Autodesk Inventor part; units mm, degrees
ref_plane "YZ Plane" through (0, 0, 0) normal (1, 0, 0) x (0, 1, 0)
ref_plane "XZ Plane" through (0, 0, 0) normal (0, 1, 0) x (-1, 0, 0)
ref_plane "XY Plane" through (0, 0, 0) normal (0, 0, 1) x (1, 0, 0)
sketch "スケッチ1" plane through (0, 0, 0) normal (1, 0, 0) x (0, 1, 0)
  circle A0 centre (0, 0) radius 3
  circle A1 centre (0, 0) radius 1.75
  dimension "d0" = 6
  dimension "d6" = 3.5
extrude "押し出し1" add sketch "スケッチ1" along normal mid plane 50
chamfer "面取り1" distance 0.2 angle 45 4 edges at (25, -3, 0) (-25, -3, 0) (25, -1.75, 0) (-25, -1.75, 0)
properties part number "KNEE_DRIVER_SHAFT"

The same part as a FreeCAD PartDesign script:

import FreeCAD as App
import Part
import Sketcher
from FreeCAD import Vector
Q = App.Units.Quantity


def edges_at(feature, points):
    """Names of the edges that pass closest to the given points."""
    edges = feature.Shape.Edges
    near = lambda p: min(range(len(edges)), key=lambda i: edges[i].distToShape(Part.Vertex(*p))[0])
    return sorted({f"Edge{near(p) + 1}" for p in points})

doc = App.newDocument("Part")
body = doc.addObject("PartDesign::Body", "Body")

# Sketch on YZ plane
sketch1 = doc.addObject("Sketcher::SketchObject", "Sketch")
body.addObject(sketch1)
sketch1.AttachmentSupport = (doc.YZ_Plane, [""])
sketch1.MapMode = "FlatFace"
sketch1.addGeometry(Part.Circle(Vector(0, 0, 0), Vector(0, 0, 1), 3), False)
sketch1.addGeometry(Part.Circle(Vector(0, 0, 0), Vector(0, 0, 1), 1.8), False)
sketch1.addConstraint(Sketcher.Constraint("Coincident", 0, 3, -1, 1))
sketch1.addConstraint(Sketcher.Constraint("Coincident", 1, 3, -1, 1))
sketch1.addConstraint(Sketcher.Constraint("Diameter", 0, Q("6 mm")))
sketch1.addConstraint(Sketcher.Constraint("Diameter", 1, Q("3.5 mm")))
pad1 = doc.addObject("PartDesign::Pad", "Pad")
body.addObject(pad1)
pad1.Profile = sketch1
pad1.Length = 50
pad1.Midplane = True
doc.recompute()

chamfer = doc.addObject("PartDesign::Chamfer", "Chamfer")
body.addObject(chamfer)
chamfer.Base = (pad1, edges_at(pad1, [
    (25, -3, 0),
    (-25, -3, 0),
    (25, -1.75, 0),
    (-25, -1.75, 0),
]))
chamfer.Size = 0.2

doc.recompute()
